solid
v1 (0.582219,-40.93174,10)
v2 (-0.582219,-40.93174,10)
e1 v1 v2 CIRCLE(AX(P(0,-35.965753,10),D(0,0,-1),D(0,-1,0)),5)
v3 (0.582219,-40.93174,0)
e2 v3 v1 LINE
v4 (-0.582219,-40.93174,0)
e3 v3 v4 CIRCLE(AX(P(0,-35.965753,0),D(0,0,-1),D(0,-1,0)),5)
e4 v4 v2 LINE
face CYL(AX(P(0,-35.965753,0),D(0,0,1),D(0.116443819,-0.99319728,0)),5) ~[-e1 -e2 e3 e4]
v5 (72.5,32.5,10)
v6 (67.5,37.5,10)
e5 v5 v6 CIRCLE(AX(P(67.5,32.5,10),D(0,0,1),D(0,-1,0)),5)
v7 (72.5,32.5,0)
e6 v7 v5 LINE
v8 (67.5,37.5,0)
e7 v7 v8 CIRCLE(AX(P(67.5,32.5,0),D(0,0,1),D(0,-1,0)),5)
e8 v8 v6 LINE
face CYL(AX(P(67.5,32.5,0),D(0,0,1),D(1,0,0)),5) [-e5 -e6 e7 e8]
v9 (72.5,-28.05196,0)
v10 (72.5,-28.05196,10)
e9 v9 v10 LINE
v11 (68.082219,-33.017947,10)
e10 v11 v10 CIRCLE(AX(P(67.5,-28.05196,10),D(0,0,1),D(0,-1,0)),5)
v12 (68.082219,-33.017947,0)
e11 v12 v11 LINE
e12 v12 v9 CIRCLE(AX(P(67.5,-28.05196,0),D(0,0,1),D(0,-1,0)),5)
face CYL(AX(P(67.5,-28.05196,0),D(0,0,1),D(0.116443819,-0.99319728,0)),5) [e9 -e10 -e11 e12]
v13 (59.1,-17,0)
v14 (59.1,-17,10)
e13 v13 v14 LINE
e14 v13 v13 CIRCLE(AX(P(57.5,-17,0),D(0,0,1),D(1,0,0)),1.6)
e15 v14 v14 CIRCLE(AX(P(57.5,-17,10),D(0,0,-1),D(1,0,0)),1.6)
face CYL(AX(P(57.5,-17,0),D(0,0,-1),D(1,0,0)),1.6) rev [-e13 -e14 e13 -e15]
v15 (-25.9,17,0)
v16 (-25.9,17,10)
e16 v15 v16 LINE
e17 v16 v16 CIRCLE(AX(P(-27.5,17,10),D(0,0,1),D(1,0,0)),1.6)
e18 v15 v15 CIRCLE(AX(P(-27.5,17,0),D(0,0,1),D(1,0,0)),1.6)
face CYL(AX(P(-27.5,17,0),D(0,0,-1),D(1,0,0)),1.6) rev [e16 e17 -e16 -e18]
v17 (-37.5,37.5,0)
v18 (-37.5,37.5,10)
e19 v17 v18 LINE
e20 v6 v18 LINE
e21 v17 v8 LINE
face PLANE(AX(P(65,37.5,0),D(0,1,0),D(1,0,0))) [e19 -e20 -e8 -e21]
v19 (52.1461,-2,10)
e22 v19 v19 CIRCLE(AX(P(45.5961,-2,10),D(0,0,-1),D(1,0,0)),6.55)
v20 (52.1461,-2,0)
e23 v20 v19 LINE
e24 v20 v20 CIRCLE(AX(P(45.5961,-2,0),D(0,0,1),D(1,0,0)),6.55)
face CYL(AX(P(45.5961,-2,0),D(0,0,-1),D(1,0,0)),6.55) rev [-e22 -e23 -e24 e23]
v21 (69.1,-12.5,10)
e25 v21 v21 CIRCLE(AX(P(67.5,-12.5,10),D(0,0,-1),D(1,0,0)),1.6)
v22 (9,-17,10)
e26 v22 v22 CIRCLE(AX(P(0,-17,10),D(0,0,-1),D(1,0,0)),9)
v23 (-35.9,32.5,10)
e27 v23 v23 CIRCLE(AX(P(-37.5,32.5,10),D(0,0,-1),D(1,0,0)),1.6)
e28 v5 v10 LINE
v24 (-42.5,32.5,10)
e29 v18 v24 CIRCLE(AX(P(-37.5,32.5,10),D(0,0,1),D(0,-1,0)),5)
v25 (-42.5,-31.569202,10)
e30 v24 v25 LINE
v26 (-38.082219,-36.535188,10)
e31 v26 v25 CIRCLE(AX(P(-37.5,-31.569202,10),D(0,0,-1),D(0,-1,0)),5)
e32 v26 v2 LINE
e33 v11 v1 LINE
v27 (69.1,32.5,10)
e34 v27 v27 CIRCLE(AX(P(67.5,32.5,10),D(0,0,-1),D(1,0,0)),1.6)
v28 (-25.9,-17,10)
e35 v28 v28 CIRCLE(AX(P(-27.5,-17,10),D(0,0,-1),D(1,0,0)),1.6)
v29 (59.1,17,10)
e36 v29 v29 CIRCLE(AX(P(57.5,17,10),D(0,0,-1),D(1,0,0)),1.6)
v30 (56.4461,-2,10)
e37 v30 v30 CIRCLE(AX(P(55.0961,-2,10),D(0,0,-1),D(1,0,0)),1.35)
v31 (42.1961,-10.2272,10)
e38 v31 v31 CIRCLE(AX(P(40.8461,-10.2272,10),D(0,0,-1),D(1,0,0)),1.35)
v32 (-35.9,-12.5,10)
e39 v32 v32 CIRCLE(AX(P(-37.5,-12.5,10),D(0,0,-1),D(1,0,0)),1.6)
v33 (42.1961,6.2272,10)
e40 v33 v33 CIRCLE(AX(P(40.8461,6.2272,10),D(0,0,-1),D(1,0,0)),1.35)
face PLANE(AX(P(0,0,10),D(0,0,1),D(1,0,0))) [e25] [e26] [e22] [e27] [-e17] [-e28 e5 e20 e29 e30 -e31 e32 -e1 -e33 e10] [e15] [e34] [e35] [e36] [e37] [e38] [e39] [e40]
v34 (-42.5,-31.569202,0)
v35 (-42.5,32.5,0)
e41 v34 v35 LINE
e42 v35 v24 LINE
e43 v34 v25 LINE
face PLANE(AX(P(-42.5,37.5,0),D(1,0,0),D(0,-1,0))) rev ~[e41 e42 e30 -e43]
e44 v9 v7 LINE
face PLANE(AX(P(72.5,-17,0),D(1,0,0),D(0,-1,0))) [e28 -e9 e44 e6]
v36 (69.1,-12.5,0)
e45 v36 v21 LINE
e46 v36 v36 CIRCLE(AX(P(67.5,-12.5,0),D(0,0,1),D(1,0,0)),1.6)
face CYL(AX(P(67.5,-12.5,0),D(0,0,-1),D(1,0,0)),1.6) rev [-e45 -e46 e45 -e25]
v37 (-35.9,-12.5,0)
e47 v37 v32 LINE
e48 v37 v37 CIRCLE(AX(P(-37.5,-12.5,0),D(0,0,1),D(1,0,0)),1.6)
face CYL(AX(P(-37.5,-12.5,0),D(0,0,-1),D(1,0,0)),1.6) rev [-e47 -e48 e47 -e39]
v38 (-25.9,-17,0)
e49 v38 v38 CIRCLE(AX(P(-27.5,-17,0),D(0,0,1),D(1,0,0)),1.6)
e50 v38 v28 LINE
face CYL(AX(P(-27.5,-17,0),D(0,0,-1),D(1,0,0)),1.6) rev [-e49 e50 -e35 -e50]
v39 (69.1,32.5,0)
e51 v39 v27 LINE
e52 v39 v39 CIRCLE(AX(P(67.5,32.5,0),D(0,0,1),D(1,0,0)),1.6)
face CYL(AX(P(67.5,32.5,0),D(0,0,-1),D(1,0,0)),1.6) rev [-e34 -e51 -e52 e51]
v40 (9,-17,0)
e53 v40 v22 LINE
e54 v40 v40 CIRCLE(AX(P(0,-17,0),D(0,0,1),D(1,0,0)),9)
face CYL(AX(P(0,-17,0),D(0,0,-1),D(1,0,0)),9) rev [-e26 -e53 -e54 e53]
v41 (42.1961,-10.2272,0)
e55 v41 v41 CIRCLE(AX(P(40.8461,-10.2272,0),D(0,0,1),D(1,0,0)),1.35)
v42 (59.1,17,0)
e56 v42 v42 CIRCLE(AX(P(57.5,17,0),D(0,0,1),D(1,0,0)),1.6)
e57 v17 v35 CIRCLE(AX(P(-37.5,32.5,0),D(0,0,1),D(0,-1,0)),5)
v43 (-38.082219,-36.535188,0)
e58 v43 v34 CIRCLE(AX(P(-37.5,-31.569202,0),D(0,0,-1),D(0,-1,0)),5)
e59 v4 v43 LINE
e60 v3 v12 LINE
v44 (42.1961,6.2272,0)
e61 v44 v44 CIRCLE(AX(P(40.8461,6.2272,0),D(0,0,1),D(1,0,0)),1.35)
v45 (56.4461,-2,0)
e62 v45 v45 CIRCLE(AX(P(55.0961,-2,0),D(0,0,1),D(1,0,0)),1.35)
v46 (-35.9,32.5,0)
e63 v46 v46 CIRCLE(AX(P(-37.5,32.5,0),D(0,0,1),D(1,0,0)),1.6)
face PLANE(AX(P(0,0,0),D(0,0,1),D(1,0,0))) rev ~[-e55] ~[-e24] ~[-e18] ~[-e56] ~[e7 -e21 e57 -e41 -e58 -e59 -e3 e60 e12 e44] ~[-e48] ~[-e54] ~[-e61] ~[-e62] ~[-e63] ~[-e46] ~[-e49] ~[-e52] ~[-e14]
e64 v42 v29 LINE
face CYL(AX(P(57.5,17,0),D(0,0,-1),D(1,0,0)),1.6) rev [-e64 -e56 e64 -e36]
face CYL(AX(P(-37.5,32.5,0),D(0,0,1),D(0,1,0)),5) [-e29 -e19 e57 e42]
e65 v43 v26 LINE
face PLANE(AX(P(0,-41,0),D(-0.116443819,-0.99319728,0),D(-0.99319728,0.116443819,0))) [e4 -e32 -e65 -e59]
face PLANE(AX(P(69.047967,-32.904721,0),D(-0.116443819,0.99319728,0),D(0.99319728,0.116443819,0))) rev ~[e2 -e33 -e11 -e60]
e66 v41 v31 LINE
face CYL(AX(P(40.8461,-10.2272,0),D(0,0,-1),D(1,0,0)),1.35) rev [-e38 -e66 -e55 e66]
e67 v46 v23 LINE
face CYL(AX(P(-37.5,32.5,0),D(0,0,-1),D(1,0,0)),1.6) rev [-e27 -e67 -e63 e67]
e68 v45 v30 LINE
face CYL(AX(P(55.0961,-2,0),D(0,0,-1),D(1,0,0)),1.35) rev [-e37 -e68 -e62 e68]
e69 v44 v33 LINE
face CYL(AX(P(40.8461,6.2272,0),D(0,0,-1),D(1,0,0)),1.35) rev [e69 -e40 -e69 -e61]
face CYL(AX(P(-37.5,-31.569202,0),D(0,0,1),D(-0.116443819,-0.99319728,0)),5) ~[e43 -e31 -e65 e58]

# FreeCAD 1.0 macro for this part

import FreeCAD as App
import Part
import Sketcher
Q = App.Units.Quantity


def edges_at(feature, points):
    """Names of the edges that pass closest to the given points."""
    edges = feature.Shape.Edges
    near = lambda p: min(range(len(edges)), key=lambda i: edges[i].distToShape(Part.Vertex(*p))[0])
    return sorted({f"Edge{near(p) + 1}" for p in points})


def add_polygon(sketch, points):
    """Adds a closed chain of lines whose ends are joined by coincident constraints."""
    first, n = sketch.GeometryCount, len(points)
    for a, b in zip(points, points[1:] + points[:1]):
        sketch.addGeometry(Part.LineSegment(App.Vector(*a, 0), App.Vector(*b, 0)), False)
    for i in range(n):
        sketch.addConstraint(Sketcher.Constraint("Coincident", first + i, 2, first + (i + 1) % n, 1))

doc = App.newDocument("Part")
body = doc.addObject("PartDesign::Body", "Body")

sketch1 = doc.addObject("Sketcher::SketchObject", "Sketch")
body.addObject(sketch1)
sketch1.AttachmentSupport = (doc.XY_Plane, [""])
sketch1.MapMode = "FlatFace"
add_polygon(sketch1, [(72.5, -32.5), (72.5, 37.5), (-42.5, 37.5), (-42.5, -36.017241), (0, -41)])
sketch1.addGeometry(Part.Circle(App.Vector(67.5, -12.5, 0), App.Vector(0, 0, 1), 1.6), False)
sketch1.addGeometry(Part.Circle(App.Vector(67.5, 32.5, 0), App.Vector(0, 0, 1), 1.6), False)
sketch1.addGeometry(Part.Circle(App.Vector(57.5, -17, 0), App.Vector(0, 0, 1), 1.6), False)
sketch1.addGeometry(Part.Circle(App.Vector(57.5, 17, 0), App.Vector(0, 0, 1), 1.6), False)
sketch1.addGeometry(Part.Circle(App.Vector(40.8461, -10.2272, 0), App.Vector(0, 0, 1), 1.35), False)
sketch1.addGeometry(Part.Circle(App.Vector(55.0961, -2, 0), App.Vector(0, 0, 1), 1.35), False)
sketch1.addGeometry(Part.Circle(App.Vector(-37.5, 32.5, 0), App.Vector(0, 0, 1), 1.6), False)
sketch1.addGeometry(Part.Circle(App.Vector(0, -17, 0), App.Vector(0, 0, 1), 9), False)
sketch1.addGeometry(Part.Circle(App.Vector(45.5961, -2, 0), App.Vector(0, 0, 1), 6.55), False)
sketch1.addGeometry(Part.Circle(App.Vector(40.8461, 6.2272, 0), App.Vector(0, 0, 1), 1.35), False)
sketch1.addGeometry(Part.Circle(App.Vector(-27.5, 17, 0), App.Vector(0, 0, 1), 1.6), False)
sketch1.addGeometry(Part.Circle(App.Vector(-27.5, -17, 0), App.Vector(0, 0, 1), 1.6), False)
sketch1.addGeometry(Part.Circle(App.Vector(-37.5, -12.5, 0), App.Vector(0, 0, 1), 1.6), False)
sketch1.addConstraint([
    Sketcher.Constraint("Vertical", 0),
    Sketcher.Constraint("Horizontal", 1),
    Sketcher.Constraint("Vertical", 2),
    Sketcher.Constraint("Equal", 5, 6),
    Sketcher.Constraint("Equal", 6, 7),
    Sketcher.Constraint("Equal", 7, 8),
    Sketcher.Constraint("Equal", 9, 10),
    Sketcher.Constraint("Equal", 8, 11),
    Sketcher.Constraint("Equal", 10, 14),
    Sketcher.Constraint("Equal", 11, 15),
    Sketcher.Constraint("Equal", 15, 16),
    Sketcher.Constraint("Equal", 16, 17),
    Sketcher.Constraint("Symmetric", 7, 3, 8, 3, -1),
    Sketcher.Constraint("Symmetric", 15, 3, 16, 3, -1),
    Sketcher.Constraint("PointOnObject", 12, 3, -2),
    Sketcher.Constraint("PointOnObject", 3, 2, -2),
    Sketcher.Constraint("Horizontal", 6, 3, 11, 3),
    Sketcher.Constraint("Horizontal", 7, 3, 12, 3),
    Sketcher.Constraint("Horizontal", 10, 3, 13, 3),
    Sketcher.Constraint("Horizontal", 8, 3, 15, 3),
    Sketcher.Constraint("Horizontal", 5, 3, 17, 3),
    Sketcher.Constraint("Vertical", 5, 3, 6, 3),
    Sketcher.Constraint("Vertical", 9, 3, 14, 3),
    Sketcher.Constraint("Vertical", 11, 3, 17, 3),
    Sketcher.Constraint("Diameter", 12, Q("18 mm")),
    Sketcher.Constraint("Diameter", 5, Q("3.2 mm")),
    Sketcher.Constraint("Diameter", 9, Q("2.7 mm")),
    Sketcher.Constraint("Diameter", 13, Q("13.1 mm")),
    Sketcher.Constraint("DistanceY", 7, 3, -1, 1, Q("17 mm")),
    Sketcher.Constraint("DistanceX", 7, 3, 5, 3, Q("10 mm")),
    Sketcher.Constraint("DistanceY", 7, 3, 10, 3, Q("15 mm")),
    Sketcher.Constraint("DistanceX", 11, 3, 15, 3, Q("10 mm")),
    Sketcher.Constraint("DistanceX", 6, 3, 0, 2, Q("5 mm")),
    Sketcher.Constraint("DistanceY", 6, 3, 0, 2, Q("5 mm")),
    Sketcher.Constraint("DistanceX", 1, 2, 11, 3, Q("5 mm")),
    Sketcher.Constraint("DistanceY", 4, 2, 5, 3, Q("20 mm")),
    Sketcher.Constraint("DistanceY", 8, 3, 0, 2, Q("20.5 mm")),
    Sketcher.Constraint("DistanceX", 1, 2, 1, 1, Q("115 mm")),
    Sketcher.Constraint("DistanceY", 0, 1, 0, 2, Q("70 mm")),
    Sketcher.Constraint("DistanceY", 3, 2, -1, 1, Q("41 mm")),
    Sketcher.Constraint("DistanceX", -1, 1, 5, 3, Q("67.5 mm")),
    Sketcher.Constraint("DistanceX", 13, 3, 10, 3, Q("9.5 mm")),
    Sketcher.Constraint("DistanceX", 9, 3, 10, 3, Q("14.25 mm")),
    Sketcher.Constraint("Distance", 3, Q("42.791 mm")),
    Sketcher.Constraint("DistanceX", -1, 1, 9, 3, Q("40.846 mm")),
    Sketcher.Constraint("DistanceY", 9, 3, -1, 1, Q("10.2272 mm")),
    Sketcher.Constraint("DistanceY", -1, 1, 14, 3, Q("6.2272 mm")),
])
pad1 = doc.addObject("PartDesign::Pad", "Pad")
body.addObject(pad1)
pad1.Profile = sketch1
pad1.Length = 10
doc.recompute()

fillet = doc.addObject("PartDesign::Fillet", "Fillet")
body.addObject(fillet)
fillet.Base = (pad1, edges_at(pad1, [
    (72.5, 37.5, 5),
    (72.5, -32.5, 5),
    (0, -41, 5),
    (-42.5, 37.5, 5),
    (-42.5, -36.017, 5),
]))
fillet.Radius = 5

doc.recompute()
